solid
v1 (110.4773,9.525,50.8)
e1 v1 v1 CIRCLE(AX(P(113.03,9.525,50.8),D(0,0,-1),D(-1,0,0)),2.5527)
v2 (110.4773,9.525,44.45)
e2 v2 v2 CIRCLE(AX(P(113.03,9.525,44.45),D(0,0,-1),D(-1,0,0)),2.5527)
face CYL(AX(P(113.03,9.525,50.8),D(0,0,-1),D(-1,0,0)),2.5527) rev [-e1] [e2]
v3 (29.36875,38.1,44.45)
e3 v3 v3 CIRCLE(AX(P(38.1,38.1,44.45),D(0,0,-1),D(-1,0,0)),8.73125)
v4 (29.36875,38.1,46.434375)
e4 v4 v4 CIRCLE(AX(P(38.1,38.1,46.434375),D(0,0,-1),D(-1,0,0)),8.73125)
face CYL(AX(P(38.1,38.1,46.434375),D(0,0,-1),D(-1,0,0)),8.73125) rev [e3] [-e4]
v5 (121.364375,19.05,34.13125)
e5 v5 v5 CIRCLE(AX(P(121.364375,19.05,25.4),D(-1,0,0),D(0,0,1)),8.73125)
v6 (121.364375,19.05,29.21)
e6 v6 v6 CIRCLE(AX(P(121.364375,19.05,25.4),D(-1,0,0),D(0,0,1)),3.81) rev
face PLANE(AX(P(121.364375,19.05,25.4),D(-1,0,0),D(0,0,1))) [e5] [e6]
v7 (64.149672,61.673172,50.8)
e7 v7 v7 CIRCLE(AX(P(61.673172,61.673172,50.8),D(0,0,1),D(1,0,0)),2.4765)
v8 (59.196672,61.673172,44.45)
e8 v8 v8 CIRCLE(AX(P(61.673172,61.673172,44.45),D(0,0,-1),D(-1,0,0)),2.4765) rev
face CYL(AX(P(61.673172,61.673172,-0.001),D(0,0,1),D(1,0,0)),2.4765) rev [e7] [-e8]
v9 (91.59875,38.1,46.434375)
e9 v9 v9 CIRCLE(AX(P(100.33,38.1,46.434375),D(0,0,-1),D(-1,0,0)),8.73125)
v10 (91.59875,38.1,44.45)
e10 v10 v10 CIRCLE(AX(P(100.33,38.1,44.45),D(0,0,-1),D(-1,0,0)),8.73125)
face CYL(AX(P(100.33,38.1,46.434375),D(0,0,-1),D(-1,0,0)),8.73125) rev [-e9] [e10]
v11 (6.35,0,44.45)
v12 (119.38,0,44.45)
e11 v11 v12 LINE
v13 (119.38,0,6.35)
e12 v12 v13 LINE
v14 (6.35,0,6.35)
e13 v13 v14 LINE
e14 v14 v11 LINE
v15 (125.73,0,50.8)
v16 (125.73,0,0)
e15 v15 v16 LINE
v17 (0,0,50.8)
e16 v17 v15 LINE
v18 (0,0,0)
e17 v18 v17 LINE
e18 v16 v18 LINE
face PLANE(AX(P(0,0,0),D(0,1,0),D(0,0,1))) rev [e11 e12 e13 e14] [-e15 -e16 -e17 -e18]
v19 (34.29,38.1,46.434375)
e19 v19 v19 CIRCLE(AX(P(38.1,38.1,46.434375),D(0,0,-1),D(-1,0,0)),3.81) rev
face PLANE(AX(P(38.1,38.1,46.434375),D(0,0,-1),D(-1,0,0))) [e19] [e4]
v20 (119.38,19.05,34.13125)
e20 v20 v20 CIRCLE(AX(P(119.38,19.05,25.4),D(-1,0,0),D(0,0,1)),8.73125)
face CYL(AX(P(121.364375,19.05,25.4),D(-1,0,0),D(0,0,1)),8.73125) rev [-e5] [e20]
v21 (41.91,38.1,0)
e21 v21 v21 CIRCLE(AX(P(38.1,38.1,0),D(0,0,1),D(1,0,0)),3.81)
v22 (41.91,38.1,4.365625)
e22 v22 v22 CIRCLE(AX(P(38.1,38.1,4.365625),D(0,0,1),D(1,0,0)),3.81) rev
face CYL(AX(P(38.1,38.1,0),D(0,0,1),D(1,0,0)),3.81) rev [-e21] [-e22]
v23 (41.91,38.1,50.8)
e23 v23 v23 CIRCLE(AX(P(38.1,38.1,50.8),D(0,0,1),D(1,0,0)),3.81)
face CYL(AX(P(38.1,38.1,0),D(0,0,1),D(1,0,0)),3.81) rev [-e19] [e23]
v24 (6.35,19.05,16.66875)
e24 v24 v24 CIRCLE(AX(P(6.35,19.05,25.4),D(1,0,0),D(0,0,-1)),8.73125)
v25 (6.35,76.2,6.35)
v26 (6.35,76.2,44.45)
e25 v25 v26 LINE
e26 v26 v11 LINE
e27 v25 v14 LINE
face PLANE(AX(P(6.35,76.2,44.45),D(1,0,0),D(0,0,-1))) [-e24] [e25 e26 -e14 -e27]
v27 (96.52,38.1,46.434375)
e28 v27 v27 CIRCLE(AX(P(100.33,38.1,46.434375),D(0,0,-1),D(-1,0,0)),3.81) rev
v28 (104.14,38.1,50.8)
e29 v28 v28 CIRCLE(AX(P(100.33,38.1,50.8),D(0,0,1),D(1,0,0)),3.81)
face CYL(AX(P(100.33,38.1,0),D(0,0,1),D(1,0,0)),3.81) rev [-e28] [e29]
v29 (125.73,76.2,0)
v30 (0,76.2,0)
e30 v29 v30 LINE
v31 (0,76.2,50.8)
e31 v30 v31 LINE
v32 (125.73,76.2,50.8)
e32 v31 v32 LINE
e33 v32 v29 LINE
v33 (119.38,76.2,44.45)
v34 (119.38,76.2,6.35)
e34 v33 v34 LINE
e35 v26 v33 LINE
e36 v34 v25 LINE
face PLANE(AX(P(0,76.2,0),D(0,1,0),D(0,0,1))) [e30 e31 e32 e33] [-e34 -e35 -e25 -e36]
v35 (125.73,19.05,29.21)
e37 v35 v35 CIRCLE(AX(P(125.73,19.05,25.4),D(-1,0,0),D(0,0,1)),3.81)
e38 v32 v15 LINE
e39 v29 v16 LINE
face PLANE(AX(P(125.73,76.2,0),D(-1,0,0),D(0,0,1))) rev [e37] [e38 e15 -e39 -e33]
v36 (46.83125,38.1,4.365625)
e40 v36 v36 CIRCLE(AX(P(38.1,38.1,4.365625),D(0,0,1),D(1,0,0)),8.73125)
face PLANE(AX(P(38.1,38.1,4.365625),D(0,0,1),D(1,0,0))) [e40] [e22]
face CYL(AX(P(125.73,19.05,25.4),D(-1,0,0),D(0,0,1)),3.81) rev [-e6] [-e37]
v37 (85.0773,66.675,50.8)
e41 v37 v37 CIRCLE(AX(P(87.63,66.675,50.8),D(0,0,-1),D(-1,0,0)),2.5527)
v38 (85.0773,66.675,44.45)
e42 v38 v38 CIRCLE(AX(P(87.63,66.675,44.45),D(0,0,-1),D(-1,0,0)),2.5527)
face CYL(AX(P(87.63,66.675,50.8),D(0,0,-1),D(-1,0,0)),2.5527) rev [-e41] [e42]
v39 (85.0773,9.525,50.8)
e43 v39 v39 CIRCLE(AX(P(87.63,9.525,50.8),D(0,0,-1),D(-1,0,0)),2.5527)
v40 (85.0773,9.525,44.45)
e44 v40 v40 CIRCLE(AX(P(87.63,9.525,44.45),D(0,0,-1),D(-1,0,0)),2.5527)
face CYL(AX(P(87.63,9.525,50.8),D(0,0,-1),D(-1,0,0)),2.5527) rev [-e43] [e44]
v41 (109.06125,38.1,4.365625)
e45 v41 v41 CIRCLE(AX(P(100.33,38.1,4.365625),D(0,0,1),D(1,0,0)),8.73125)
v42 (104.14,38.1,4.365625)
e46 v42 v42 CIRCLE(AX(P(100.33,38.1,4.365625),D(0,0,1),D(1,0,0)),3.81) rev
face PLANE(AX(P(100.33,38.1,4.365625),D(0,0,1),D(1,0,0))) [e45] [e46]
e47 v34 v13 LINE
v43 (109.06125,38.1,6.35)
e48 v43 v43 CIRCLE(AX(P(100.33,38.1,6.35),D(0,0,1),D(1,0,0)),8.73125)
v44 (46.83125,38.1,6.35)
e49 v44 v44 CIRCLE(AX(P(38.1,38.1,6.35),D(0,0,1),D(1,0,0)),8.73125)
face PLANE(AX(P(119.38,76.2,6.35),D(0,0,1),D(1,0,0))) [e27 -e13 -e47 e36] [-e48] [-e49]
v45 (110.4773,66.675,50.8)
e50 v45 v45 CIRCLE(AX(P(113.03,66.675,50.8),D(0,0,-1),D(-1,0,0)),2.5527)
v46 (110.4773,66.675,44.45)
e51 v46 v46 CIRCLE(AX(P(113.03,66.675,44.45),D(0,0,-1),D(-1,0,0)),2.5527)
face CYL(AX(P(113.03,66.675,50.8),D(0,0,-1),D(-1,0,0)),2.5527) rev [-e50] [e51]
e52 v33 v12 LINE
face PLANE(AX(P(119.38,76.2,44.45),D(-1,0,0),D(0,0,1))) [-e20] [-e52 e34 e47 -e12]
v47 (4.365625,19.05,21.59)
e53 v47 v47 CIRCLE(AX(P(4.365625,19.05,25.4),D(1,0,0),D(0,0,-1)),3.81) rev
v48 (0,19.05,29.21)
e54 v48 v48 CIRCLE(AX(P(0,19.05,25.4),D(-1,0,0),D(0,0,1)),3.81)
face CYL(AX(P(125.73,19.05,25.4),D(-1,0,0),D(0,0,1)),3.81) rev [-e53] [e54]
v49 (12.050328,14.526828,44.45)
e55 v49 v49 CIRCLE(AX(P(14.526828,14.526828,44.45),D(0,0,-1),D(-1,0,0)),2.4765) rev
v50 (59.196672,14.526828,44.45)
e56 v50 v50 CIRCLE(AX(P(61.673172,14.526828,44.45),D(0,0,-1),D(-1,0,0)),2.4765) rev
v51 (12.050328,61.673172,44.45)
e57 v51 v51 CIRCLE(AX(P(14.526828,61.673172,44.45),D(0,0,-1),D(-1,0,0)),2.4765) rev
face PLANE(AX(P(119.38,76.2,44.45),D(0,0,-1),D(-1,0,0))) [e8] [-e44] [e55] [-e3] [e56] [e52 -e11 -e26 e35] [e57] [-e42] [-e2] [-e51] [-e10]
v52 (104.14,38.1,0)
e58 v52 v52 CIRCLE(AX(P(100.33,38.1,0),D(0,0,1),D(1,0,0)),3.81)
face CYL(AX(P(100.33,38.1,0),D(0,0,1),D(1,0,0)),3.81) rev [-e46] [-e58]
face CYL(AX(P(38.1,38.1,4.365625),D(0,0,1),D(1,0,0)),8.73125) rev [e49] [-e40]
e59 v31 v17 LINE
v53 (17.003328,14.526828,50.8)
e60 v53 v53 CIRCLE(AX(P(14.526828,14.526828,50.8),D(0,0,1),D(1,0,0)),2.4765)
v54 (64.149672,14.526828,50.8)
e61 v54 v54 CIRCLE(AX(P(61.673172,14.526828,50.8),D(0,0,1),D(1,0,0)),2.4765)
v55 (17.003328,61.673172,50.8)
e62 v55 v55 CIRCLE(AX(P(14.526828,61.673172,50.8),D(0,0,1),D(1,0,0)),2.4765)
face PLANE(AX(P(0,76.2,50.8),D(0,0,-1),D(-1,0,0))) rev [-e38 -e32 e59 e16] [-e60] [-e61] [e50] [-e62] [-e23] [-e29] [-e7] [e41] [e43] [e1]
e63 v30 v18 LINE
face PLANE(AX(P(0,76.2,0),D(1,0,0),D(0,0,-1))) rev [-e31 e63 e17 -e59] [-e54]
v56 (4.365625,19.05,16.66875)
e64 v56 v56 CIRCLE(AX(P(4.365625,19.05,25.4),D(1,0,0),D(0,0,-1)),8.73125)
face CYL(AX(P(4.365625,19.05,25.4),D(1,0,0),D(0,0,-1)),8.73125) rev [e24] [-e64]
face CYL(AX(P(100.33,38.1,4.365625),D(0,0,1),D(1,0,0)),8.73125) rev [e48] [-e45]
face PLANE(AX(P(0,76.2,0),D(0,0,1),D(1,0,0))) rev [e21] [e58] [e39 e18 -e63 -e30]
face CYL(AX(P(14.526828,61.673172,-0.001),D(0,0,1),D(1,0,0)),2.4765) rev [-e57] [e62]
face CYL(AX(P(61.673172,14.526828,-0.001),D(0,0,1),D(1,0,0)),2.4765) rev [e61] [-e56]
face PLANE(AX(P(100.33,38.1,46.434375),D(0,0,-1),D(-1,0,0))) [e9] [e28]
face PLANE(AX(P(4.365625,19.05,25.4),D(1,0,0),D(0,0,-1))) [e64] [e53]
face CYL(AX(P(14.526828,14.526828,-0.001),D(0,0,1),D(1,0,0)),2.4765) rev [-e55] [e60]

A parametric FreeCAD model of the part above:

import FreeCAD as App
import Part
import Sketcher

V = App.Vector
Q = App.Units.Quantity

doc = App.newDocument("Part")
body = doc.addObject("PartDesign::Body", "Body")

# Sketch on XZ plane
sketch1 = body.newObject("Sketcher::SketchObject", "Sketch")
sketch1.AttachmentSupport = (doc.getObject("XZ_Plane"), [""])
sketch1.MapMode = "FlatFace"
sketch1.addGeometry(Part.LineSegment(V(0, 0, 0), V(0, 51, 0)), False)
sketch1.addGeometry(Part.LineSegment(V(0, 51, 0), V(126, 51, 0)), False)
sketch1.addGeometry(Part.LineSegment(V(126, 51, 0), V(126, 0, 0)), False)
sketch1.addGeometry(Part.LineSegment(V(126, 0, 0), V(0, 0, 0)), False)
sketch1.addGeometry(Part.LineSegment(V(119, 44, 0), V(6, 44, 0)), False)
sketch1.addGeometry(Part.LineSegment(V(6, 44, 0), V(6, 6, 0)), False)
sketch1.addGeometry(Part.LineSegment(V(6, 6, 0), V(119, 6, 0)), False)
sketch1.addGeometry(Part.LineSegment(V(119, 6, 0), V(119, 44, 0)), False)
sketch1.addConstraint(Sketcher.Constraint("Coincident", 0, 2, 1, 1))
sketch1.addConstraint(Sketcher.Constraint("Coincident", 1, 2, 2, 1))
sketch1.addConstraint(Sketcher.Constraint("Coincident", 2, 2, 3, 1))
sketch1.addConstraint(Sketcher.Constraint("Coincident", 3, 2, 0, 1))
sketch1.addConstraint(Sketcher.Constraint("Coincident", 4, 2, 5, 1))
sketch1.addConstraint(Sketcher.Constraint("Coincident", 5, 2, 6, 1))
sketch1.addConstraint(Sketcher.Constraint("Coincident", 6, 2, 7, 1))
sketch1.addConstraint(Sketcher.Constraint("Coincident", 7, 2, 4, 1))
sketch1.addConstraint(Sketcher.Constraint("Vertical", 0))
sketch1.addConstraint(Sketcher.Constraint("Horizontal", 1))
sketch1.addConstraint(Sketcher.Constraint("Vertical", 2))
sketch1.addConstraint(Sketcher.Constraint("Horizontal", 3))
sketch1.addConstraint(Sketcher.Constraint("Horizontal", 4))
sketch1.addConstraint(Sketcher.Constraint("Vertical", 5))
sketch1.addConstraint(Sketcher.Constraint("Horizontal", 6))
sketch1.addConstraint(Sketcher.Constraint("Vertical", 7))
sketch1.addConstraint(Sketcher.Constraint("Coincident", 3, 2, -1, 1))
sketch1.addConstraint(Sketcher.Constraint("DistanceY", 0, 1, 0, 2, Q("2 in")))
sketch1.addConstraint(Sketcher.Constraint("DistanceY", 5, 2, 5, 1, Q("1.5 in")))
sketch1.addConstraint(Sketcher.Constraint("DistanceX", 1, 1, 1, 2, Q("4.95 in")))
sketch1.addConstraint(Sketcher.Constraint("DistanceX", 4, 2, 4, 1, Q("4.45 in")))
sketch1.addConstraint(Sketcher.Constraint("DistanceX", -1, 1, 6, 2, Q("4.7 in")))
sketch1.addConstraint(Sketcher.Constraint("DistanceY", -1, 1, 4, 2, Q("1.75 in")))
pad1 = body.newObject("PartDesign::Pad", "Pad")
pad1.Profile = sketch1
pad1.Length = Q("3 in")
pad1.Reversed = True

# Sketch on XY plane
sketch2 = body.newObject("Sketcher::SketchObject", "Sketch001")
sketch2.AttachmentSupport = (doc.getObject("XY_Plane"), [""])
sketch2.MapMode = "FlatFace"
sketch2.AttachmentOffset = App.Placement(V(0, 0, 2 * 25.4), App.Rotation())
sketch2.addGeometry(Part.Circle(V(14.5, 61.7, 0), V(0, 0, 1), 2.5), False)
sketch2.addConstraint(Sketcher.Constraint("Diameter", 0, Q("0.195 in")))
sketch2.addConstraint(Sketcher.Constraint("DistanceX", -1, 1, 0, 3, 14.526828))
sketch2.addConstraint(Sketcher.Constraint("DistanceY", -1, 1, 0, 3, 61.673172))
pocket1 = body.newObject("PartDesign::Pocket", "Pocket")
pocket1.Profile = sketch2
pocket1.Type = "UpToFirst"

# Sketch on XY plane
sketch3 = body.newObject("Sketcher::SketchObject", "Sketch002")
sketch3.AttachmentSupport = (doc.getObject("XY_Plane"), [""])
sketch3.MapMode = "FlatFace"
sketch3.AttachmentOffset = App.Placement(V(0, 0, 2 * 25.4), App.Rotation())
sketch3.addGeometry(Part.Circle(V(61.7, 61.7, 0), V(0, 0, 1), 2.5), False)
sketch3.addConstraint(Sketcher.Constraint("Diameter", 0, Q("0.195 in")))
sketch3.addConstraint(Sketcher.Constraint("DistanceX", -1, 1, 0, 3, 61.673172))
sketch3.addConstraint(Sketcher.Constraint("DistanceY", -1, 1, 0, 3, 61.673172))
pocket2 = body.newObject("PartDesign::Pocket", "Pocket001")
pocket2.Profile = sketch3
pocket2.Type = "UpToFirst"

# Sketch on XY plane
sketch4 = body.newObject("Sketcher::SketchObject", "Sketch003")
sketch4.AttachmentSupport = (doc.getObject("XY_Plane"), [""])
sketch4.MapMode = "FlatFace"
sketch4.AttachmentOffset = App.Placement(V(0, 0, 2 * 25.4), App.Rotation())
sketch4.addGeometry(Part.Circle(V(61.7, 14.5, 0), V(0, 0, 1), 2.5), False)
sketch4.addConstraint(Sketcher.Constraint("Diameter", 0, Q("0.195 in")))
sketch4.addConstraint(Sketcher.Constraint("DistanceX", -1, 1, 0, 3, 61.673172))
sketch4.addConstraint(Sketcher.Constraint("DistanceY", -1, 1, 0, 3, 14.526828))
pocket3 = body.newObject("PartDesign::Pocket", "Pocket002")
pocket3.Profile = sketch4
pocket3.Type = "UpToFirst"

# Sketch on XY plane
sketch5 = body.newObject("Sketcher::SketchObject", "Sketch004")
sketch5.AttachmentSupport = (doc.getObject("XY_Plane"), [""])
sketch5.MapMode = "FlatFace"
sketch5.AttachmentOffset = App.Placement(V(0, 0, 2 * 25.4), App.Rotation())
sketch5.addGeometry(Part.Circle(V(14.5, 14.5, 0), V(0, 0, 1), 2.5), False)
sketch5.addConstraint(Sketcher.Constraint("Diameter", 0, Q("0.195 in")))
sketch5.addConstraint(Sketcher.Constraint("DistanceX", -1, 1, 0, 3, 14.526828))
sketch5.addConstraint(Sketcher.Constraint("DistanceY", -1, 1, 0, 3, 14.526828))
pocket4 = body.newObject("PartDesign::Pocket", "Pocket003")
pocket4.Profile = sketch5
pocket4.Type = "UpToFirst"

# Sketch on XY plane
sketch6 = body.newObject("Sketcher::SketchObject", "Sketch005")
sketch6.AttachmentSupport = (doc.getObject("XY_Plane"), [""])
sketch6.MapMode = "FlatFace"
sketch6.AttachmentOffset = App.Placement(V(0, 0, 2 * 25.4), App.Rotation())
sketch6.addGeometry(Part.Circle(V(38.1, 38.1, 0), V(0, 0, 1), 3.8), False)
sketch6.addConstraint(Sketcher.Constraint("Diameter", 0, Q("0.3 in")))
sketch6.addConstraint(Sketcher.Constraint("DistanceX", -1, 1, 0, 3, Q("1.5 in")))
sketch6.addConstraint(Sketcher.Constraint("DistanceY", -1, 1, 0, 3, Q("1.5 in")))
pocket5 = body.newObject("PartDesign::Pocket", "Pocket004")
pocket5.Profile = sketch6
pocket5.Type = "ThroughAll"

# Sketch on XY plane
sketch7 = body.newObject("Sketcher::SketchObject", "Sketch006")
sketch7.AttachmentSupport = (doc.getObject("XY_Plane"), [""])
sketch7.MapMode = "FlatFace"
sketch7.AttachmentOffset = App.Placement(V(0, 0, 2 * 25.4), App.Rotation())
sketch7.addGeometry(Part.Circle(V(100.3, 38.1, 0), V(0, 0, 1), 3.8), False)
sketch7.addConstraint(Sketcher.Constraint("Diameter", 0, Q("0.3 in")))
sketch7.addConstraint(Sketcher.Constraint("DistanceY", -1, 1, 0, 3, Q("1.5 in")))
sketch7.addConstraint(Sketcher.Constraint("DistanceX", -1, 1, 0, 3, Q("3.95 in")))
pocket6 = body.newObject("PartDesign::Pocket", "Pocket005")
pocket6.Profile = sketch7
pocket6.Type = "ThroughAll"

# Sketch on YZ plane
sketch8 = body.newObject("Sketcher::SketchObject", "Sketch007")
sketch8.AttachmentSupport = (doc.getObject("YZ_Plane"), [""])
sketch8.MapMode = "FlatFace"
sketch8.addGeometry(Part.Circle(V(19.1, 25.4, 0), V(0, 0, 1), 3.8), False)
sketch8.addConstraint(Sketcher.Constraint("Diameter", 0, Q("0.3 in")))
sketch8.addConstraint(Sketcher.Constraint("DistanceY", -1, 1, 0, 3, Q("1 in")))
sketch8.addConstraint(Sketcher.Constraint("DistanceX", -1, 1, 0, 3, Q("0.75 in")))
pocket7 = body.newObject("PartDesign::Pocket", "Pocket006")
pocket7.Profile = sketch8
pocket7.Type = "ThroughAll"
pocket7.Reversed = True

# Sketch on YZ plane
sketch9 = body.newObject("Sketcher::SketchObject", "Sketch008")
sketch9.AttachmentSupport = (doc.getObject("YZ_Plane"), [""])
sketch9.MapMode = "FlatFace"
sketch9.AttachmentOffset = App.Placement(V(0, 0, 0.25 * 25.4), App.Rotation())
sketch9.addGeometry(Part.Circle(V(19, 25, 0), V(0, 0, 1), 9), False)
sketch9.addConstraint(Sketcher.Constraint("Diameter", 0, Q("0.6875 in")))
sketch9.addConstraint(Sketcher.Constraint("DistanceY", -1, 1, 0, 3, Q("1 in")))
sketch9.addConstraint(Sketcher.Constraint("DistanceX", -1, 1, 0, 3, Q("0.75 in")))
pocket8 = body.newObject("PartDesign::Pocket", "Pocket007")
pocket8.Profile = sketch9
pocket8.Length = Q("0.078125 in")

# Sketch on XY plane
sketch10 = body.newObject("Sketcher::SketchObject", "Sketch009")
sketch10.AttachmentSupport = (doc.getObject("XY_Plane"), [""])
sketch10.MapMode = "FlatFace"
sketch10.AttachmentOffset = App.Placement(V(0, 0, 1.75 * 25.4), App.Rotation())
sketch10.addGeometry(Part.Circle(V(38, 38, 0), V(0, 0, 1), 9), False)
sketch10.addGeometry(Part.Circle(V(100, 38, 0), V(0, 0, 1), 9), False)
sketch10.addConstraint(Sketcher.Constraint("Equal", 0, 1))
sketch10.addConstraint(Sketcher.Constraint("Horizontal", 0, 3, 1, 3))
sketch10.addConstraint(Sketcher.Constraint("Diameter", 0, Q("0.6875 in")))
sketch10.addConstraint(Sketcher.Constraint("DistanceX", -1, 1, 0, 3, Q("1.5 in")))
sketch10.addConstraint(Sketcher.Constraint("DistanceY", -1, 1, 0, 3, Q("1.5 in")))
sketch10.addConstraint(Sketcher.Constraint("DistanceX", -1, 1, 1, 3, Q("3.95 in")))
pocket9 = body.newObject("PartDesign::Pocket", "Pocket008")
pocket9.Profile = sketch10
pocket9.Length = Q("0.078125 in")
pocket9.Reversed = True

# Sketch on YZ plane
sketch11 = body.newObject("Sketcher::SketchObject", "Sketch010")
sketch11.AttachmentSupport = (doc.getObject("YZ_Plane"), [""])
sketch11.MapMode = "FlatFace"
sketch11.AttachmentOffset = App.Placement(V(0, 0, 4.7 * 25.4), App.Rotation())
sketch11.addGeometry(Part.Circle(V(19, 25, 0), V(0, 0, 1), 9), False)
sketch11.addConstraint(Sketcher.Constraint("Diameter", 0, Q("0.6875 in")))
sketch11.addConstraint(Sketcher.Constraint("DistanceY", -1, 1, 0, 3, Q("1 in")))
sketch11.addConstraint(Sketcher.Constraint("DistanceX", -1, 1, 0, 3, Q("0.75 in")))
pocket10 = body.newObject("PartDesign::Pocket", "Pocket009")
pocket10.Profile = sketch11
pocket10.Length = Q("0.078125 in")
pocket10.Reversed = True

# Sketch on XY plane
sketch12 = body.newObject("Sketcher::SketchObject", "Sketch011")
sketch12.AttachmentSupport = (doc.getObject("XY_Plane"), [""])
sketch12.MapMode = "FlatFace"
sketch12.AttachmentOffset = App.Placement(V(0, 0, 0.25 * 25.4), App.Rotation())
sketch12.addGeometry(Part.Circle(V(38, 38, 0), V(0, 0, 1), 9), False)
sketch12.addGeometry(Part.Circle(V(100, 38, 0), V(0, 0, 1), 9), False)
sketch12.addConstraint(Sketcher.Constraint("Equal", 0, 1))
sketch12.addConstraint(Sketcher.Constraint("Horizontal", 0, 3, 1, 3))
sketch12.addConstraint(Sketcher.Constraint("Diameter", 0, Q("0.6875 in")))
sketch12.addConstraint(Sketcher.Constraint("DistanceX", -1, 1, 0, 3, Q("1.5 in")))
sketch12.addConstraint(Sketcher.Constraint("DistanceY", -1, 1, 0, 3, Q("1.5 in")))
sketch12.addConstraint(Sketcher.Constraint("DistanceX", -1, 1, 1, 3, Q("3.95 in")))
pocket11 = body.newObject("PartDesign::Pocket", "Pocket010")
pocket11.Profile = sketch12
pocket11.Length = Q("0.078125 in")

# Sketch on XY plane
sketch13 = body.newObject("Sketcher::SketchObject", "Sketch012")
sketch13.AttachmentSupport = (doc.getObject("XY_Plane"), [""])
sketch13.MapMode = "FlatFace"
sketch13.AttachmentOffset = App.Placement(V(0, 0, 1.75 * 25.4), App.Rotation())
sketch13.addGeometry(Part.Circle(V(87.6, 9.5, 0), V(0, 0, 1), 2.6), False)
sketch13.addGeometry(Part.Circle(V(113, 9.5, 0), V(0, 0, 1), 2.6), False)
sketch13.addGeometry(Part.Circle(V(113, 66.7, 0), V(0, 0, 1), 2.6), False)
sketch13.addGeometry(Part.Circle(V(87.6, 66.7, 0), V(0, 0, 1), 2.6), False)
sketch13.addConstraint(Sketcher.Constraint("Equal", 0, 1))
sketch13.addConstraint(Sketcher.Constraint("Equal", 1, 2))
sketch13.addConstraint(Sketcher.Constraint("Equal", 2, 3))
sketch13.addConstraint(Sketcher.Constraint("Horizontal", 0, 3, 1, 3))
sketch13.addConstraint(Sketcher.Constraint("Horizontal", 2, 3, 3, 3))
sketch13.addConstraint(Sketcher.Constraint("Vertical", 1, 3, 2, 3))
sketch13.addConstraint(Sketcher.Constraint("Vertical", 0, 3, 3, 3))
sketch13.addConstraint(Sketcher.Constraint("Diameter", 0, Q("0.201 in")))
sketch13.addConstraint(Sketcher.Constraint("DistanceX", 0, 3, 1, 3, Q("1 in")))
sketch13.addConstraint(Sketcher.Constraint("DistanceX", -1, 1, 0, 3, Q("3.45 in")))
sketch13.addConstraint(Sketcher.Constraint("DistanceY", 1, 3, 2, 3, Q("2.25 in")))
sketch13.addConstraint(Sketcher.Constraint("DistanceY", -1, 1, 0, 3, Q("0.375 in")))
pocket12 = body.newObject("PartDesign::Pocket", "Pocket011")
pocket12.Profile = sketch13
pocket12.Type = "ThroughAll"
pocket12.Reversed = True

doc.recompute()
